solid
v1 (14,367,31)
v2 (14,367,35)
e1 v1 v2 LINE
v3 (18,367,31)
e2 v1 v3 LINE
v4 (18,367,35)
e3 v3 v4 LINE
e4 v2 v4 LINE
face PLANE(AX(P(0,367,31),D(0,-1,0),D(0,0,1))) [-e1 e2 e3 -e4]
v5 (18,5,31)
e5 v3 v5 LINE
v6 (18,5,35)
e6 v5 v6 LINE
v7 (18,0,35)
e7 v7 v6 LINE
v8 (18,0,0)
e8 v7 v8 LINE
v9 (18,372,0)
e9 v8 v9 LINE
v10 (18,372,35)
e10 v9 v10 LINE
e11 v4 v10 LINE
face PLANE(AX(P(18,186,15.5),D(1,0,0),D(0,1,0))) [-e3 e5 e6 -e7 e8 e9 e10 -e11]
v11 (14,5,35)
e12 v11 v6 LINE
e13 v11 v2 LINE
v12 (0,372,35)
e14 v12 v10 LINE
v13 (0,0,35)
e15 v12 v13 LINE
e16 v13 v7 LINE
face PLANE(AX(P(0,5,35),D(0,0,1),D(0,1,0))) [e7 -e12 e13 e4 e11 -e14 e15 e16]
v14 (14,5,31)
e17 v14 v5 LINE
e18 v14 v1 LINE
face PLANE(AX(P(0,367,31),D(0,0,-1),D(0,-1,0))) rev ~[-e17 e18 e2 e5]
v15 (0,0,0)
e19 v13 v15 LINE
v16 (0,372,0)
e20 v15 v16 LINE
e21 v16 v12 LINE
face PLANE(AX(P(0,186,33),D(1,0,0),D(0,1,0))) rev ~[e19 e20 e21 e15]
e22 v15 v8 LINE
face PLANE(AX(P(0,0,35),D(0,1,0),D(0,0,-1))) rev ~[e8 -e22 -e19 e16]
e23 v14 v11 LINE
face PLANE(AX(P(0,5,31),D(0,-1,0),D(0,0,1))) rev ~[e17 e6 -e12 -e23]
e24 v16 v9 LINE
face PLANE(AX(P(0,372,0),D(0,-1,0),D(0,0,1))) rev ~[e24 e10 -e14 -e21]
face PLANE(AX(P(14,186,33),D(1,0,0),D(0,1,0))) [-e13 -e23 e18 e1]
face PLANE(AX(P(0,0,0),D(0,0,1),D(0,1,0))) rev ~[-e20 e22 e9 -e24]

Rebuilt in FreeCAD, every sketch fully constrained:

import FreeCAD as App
import Part
import Sketcher
from FreeCAD import Vector
Q = App.Units.Quantity


def add_polygon(sketch, points):
    """Adds a closed chain of lines whose ends are joined by coincident constraints."""
    first, n = sketch.GeometryCount, len(points)
    for a, b in zip(points, points[1:] + points[:1]):
        sketch.addGeometry(Part.LineSegment(App.Vector(*a, 0), App.Vector(*b, 0)), False)
    for i in range(n):
        sketch.addConstraint(Sketcher.Constraint("Coincident", first + i, 2, first + (i + 1) % n, 1))

doc = App.newDocument("Part")
body = doc.addObject("PartDesign::Body", "Body")

# Sketch on YZ plane
sketch1 = doc.addObject("Sketcher::SketchObject", "Sketch")
body.addObject(sketch1)
sketch1.AttachmentSupport = (doc.YZ_Plane, [""])
sketch1.MapMode = "FlatFace"
add_polygon(sketch1, [(0, 0), (372, 0), (372, 35), (367, 35), (367, 31), (5, 31), (5, 35), (0, 35)])  # lines 0-7
sketch1.addConstraint([
    Sketcher.Constraint("Horizontal", 0),
    Sketcher.Constraint("Vertical", 1),
    Sketcher.Constraint("Horizontal", 2),
    Sketcher.Constraint("Vertical", 3),
    Sketcher.Constraint("Horizontal", 4),
    Sketcher.Constraint("Vertical", 5),
    Sketcher.Constraint("Horizontal", 6),
    Sketcher.Constraint("Vertical", 7),
    Sketcher.Constraint("Coincident", 7, 2, -1, 1),
    Sketcher.Constraint("Horizontal", 2, 2, 5, 2),
    Sketcher.Constraint("Equal", 2, 6),
    Sketcher.Constraint("DistanceX", 0, 1, 0, 2, Q("372 mm")),
    Sketcher.Constraint("DistanceX", 2, 2, 2, 1, Q("5 mm")),
    Sketcher.Constraint("DistanceY", 1, 1, 1, 2, Q("35 mm")),
    Sketcher.Constraint("DistanceY", 3, 2, 3, 1, Q("4 mm")),
])
pad1 = doc.addObject("PartDesign::Pad", "Pad")
body.addObject(pad1)
pad1.Profile = sketch1
pad1.Length = 18

# Sketch on YZ plane
sketch2 = doc.addObject("Sketcher::SketchObject", "Sketch001")
body.addObject(sketch2)
sketch2.AttachmentSupport = (doc.YZ_Plane, [""])
sketch2.MapMode = "FlatFace"
add_polygon(sketch2, [(5, 35), (5, 31), (367, 31), (367, 35)])  # lines 0-3
sketch2.addConstraint([
    Sketcher.Constraint("Vertical", 0),
    Sketcher.Constraint("Horizontal", 1),
    Sketcher.Constraint("Vertical", 2),
    Sketcher.Constraint("Horizontal", 3),
    Sketcher.Constraint("DistanceX", 1, 1, 1, 2, Q("362 mm")),
    Sketcher.Constraint("DistanceY", 0, 2, 0, 1, Q("4 mm")),
    Sketcher.Constraint("DistanceX", -1, 1, 0, 2, Q("5 mm")),
    Sketcher.Constraint("DistanceY", -1, 1, 0, 2, Q("31 mm")),
])
pad2 = doc.addObject("PartDesign::Pad", "Pad001")
body.addObject(pad2)
pad2.Profile = sketch2
pad2.Length = 14

doc.recompute()
